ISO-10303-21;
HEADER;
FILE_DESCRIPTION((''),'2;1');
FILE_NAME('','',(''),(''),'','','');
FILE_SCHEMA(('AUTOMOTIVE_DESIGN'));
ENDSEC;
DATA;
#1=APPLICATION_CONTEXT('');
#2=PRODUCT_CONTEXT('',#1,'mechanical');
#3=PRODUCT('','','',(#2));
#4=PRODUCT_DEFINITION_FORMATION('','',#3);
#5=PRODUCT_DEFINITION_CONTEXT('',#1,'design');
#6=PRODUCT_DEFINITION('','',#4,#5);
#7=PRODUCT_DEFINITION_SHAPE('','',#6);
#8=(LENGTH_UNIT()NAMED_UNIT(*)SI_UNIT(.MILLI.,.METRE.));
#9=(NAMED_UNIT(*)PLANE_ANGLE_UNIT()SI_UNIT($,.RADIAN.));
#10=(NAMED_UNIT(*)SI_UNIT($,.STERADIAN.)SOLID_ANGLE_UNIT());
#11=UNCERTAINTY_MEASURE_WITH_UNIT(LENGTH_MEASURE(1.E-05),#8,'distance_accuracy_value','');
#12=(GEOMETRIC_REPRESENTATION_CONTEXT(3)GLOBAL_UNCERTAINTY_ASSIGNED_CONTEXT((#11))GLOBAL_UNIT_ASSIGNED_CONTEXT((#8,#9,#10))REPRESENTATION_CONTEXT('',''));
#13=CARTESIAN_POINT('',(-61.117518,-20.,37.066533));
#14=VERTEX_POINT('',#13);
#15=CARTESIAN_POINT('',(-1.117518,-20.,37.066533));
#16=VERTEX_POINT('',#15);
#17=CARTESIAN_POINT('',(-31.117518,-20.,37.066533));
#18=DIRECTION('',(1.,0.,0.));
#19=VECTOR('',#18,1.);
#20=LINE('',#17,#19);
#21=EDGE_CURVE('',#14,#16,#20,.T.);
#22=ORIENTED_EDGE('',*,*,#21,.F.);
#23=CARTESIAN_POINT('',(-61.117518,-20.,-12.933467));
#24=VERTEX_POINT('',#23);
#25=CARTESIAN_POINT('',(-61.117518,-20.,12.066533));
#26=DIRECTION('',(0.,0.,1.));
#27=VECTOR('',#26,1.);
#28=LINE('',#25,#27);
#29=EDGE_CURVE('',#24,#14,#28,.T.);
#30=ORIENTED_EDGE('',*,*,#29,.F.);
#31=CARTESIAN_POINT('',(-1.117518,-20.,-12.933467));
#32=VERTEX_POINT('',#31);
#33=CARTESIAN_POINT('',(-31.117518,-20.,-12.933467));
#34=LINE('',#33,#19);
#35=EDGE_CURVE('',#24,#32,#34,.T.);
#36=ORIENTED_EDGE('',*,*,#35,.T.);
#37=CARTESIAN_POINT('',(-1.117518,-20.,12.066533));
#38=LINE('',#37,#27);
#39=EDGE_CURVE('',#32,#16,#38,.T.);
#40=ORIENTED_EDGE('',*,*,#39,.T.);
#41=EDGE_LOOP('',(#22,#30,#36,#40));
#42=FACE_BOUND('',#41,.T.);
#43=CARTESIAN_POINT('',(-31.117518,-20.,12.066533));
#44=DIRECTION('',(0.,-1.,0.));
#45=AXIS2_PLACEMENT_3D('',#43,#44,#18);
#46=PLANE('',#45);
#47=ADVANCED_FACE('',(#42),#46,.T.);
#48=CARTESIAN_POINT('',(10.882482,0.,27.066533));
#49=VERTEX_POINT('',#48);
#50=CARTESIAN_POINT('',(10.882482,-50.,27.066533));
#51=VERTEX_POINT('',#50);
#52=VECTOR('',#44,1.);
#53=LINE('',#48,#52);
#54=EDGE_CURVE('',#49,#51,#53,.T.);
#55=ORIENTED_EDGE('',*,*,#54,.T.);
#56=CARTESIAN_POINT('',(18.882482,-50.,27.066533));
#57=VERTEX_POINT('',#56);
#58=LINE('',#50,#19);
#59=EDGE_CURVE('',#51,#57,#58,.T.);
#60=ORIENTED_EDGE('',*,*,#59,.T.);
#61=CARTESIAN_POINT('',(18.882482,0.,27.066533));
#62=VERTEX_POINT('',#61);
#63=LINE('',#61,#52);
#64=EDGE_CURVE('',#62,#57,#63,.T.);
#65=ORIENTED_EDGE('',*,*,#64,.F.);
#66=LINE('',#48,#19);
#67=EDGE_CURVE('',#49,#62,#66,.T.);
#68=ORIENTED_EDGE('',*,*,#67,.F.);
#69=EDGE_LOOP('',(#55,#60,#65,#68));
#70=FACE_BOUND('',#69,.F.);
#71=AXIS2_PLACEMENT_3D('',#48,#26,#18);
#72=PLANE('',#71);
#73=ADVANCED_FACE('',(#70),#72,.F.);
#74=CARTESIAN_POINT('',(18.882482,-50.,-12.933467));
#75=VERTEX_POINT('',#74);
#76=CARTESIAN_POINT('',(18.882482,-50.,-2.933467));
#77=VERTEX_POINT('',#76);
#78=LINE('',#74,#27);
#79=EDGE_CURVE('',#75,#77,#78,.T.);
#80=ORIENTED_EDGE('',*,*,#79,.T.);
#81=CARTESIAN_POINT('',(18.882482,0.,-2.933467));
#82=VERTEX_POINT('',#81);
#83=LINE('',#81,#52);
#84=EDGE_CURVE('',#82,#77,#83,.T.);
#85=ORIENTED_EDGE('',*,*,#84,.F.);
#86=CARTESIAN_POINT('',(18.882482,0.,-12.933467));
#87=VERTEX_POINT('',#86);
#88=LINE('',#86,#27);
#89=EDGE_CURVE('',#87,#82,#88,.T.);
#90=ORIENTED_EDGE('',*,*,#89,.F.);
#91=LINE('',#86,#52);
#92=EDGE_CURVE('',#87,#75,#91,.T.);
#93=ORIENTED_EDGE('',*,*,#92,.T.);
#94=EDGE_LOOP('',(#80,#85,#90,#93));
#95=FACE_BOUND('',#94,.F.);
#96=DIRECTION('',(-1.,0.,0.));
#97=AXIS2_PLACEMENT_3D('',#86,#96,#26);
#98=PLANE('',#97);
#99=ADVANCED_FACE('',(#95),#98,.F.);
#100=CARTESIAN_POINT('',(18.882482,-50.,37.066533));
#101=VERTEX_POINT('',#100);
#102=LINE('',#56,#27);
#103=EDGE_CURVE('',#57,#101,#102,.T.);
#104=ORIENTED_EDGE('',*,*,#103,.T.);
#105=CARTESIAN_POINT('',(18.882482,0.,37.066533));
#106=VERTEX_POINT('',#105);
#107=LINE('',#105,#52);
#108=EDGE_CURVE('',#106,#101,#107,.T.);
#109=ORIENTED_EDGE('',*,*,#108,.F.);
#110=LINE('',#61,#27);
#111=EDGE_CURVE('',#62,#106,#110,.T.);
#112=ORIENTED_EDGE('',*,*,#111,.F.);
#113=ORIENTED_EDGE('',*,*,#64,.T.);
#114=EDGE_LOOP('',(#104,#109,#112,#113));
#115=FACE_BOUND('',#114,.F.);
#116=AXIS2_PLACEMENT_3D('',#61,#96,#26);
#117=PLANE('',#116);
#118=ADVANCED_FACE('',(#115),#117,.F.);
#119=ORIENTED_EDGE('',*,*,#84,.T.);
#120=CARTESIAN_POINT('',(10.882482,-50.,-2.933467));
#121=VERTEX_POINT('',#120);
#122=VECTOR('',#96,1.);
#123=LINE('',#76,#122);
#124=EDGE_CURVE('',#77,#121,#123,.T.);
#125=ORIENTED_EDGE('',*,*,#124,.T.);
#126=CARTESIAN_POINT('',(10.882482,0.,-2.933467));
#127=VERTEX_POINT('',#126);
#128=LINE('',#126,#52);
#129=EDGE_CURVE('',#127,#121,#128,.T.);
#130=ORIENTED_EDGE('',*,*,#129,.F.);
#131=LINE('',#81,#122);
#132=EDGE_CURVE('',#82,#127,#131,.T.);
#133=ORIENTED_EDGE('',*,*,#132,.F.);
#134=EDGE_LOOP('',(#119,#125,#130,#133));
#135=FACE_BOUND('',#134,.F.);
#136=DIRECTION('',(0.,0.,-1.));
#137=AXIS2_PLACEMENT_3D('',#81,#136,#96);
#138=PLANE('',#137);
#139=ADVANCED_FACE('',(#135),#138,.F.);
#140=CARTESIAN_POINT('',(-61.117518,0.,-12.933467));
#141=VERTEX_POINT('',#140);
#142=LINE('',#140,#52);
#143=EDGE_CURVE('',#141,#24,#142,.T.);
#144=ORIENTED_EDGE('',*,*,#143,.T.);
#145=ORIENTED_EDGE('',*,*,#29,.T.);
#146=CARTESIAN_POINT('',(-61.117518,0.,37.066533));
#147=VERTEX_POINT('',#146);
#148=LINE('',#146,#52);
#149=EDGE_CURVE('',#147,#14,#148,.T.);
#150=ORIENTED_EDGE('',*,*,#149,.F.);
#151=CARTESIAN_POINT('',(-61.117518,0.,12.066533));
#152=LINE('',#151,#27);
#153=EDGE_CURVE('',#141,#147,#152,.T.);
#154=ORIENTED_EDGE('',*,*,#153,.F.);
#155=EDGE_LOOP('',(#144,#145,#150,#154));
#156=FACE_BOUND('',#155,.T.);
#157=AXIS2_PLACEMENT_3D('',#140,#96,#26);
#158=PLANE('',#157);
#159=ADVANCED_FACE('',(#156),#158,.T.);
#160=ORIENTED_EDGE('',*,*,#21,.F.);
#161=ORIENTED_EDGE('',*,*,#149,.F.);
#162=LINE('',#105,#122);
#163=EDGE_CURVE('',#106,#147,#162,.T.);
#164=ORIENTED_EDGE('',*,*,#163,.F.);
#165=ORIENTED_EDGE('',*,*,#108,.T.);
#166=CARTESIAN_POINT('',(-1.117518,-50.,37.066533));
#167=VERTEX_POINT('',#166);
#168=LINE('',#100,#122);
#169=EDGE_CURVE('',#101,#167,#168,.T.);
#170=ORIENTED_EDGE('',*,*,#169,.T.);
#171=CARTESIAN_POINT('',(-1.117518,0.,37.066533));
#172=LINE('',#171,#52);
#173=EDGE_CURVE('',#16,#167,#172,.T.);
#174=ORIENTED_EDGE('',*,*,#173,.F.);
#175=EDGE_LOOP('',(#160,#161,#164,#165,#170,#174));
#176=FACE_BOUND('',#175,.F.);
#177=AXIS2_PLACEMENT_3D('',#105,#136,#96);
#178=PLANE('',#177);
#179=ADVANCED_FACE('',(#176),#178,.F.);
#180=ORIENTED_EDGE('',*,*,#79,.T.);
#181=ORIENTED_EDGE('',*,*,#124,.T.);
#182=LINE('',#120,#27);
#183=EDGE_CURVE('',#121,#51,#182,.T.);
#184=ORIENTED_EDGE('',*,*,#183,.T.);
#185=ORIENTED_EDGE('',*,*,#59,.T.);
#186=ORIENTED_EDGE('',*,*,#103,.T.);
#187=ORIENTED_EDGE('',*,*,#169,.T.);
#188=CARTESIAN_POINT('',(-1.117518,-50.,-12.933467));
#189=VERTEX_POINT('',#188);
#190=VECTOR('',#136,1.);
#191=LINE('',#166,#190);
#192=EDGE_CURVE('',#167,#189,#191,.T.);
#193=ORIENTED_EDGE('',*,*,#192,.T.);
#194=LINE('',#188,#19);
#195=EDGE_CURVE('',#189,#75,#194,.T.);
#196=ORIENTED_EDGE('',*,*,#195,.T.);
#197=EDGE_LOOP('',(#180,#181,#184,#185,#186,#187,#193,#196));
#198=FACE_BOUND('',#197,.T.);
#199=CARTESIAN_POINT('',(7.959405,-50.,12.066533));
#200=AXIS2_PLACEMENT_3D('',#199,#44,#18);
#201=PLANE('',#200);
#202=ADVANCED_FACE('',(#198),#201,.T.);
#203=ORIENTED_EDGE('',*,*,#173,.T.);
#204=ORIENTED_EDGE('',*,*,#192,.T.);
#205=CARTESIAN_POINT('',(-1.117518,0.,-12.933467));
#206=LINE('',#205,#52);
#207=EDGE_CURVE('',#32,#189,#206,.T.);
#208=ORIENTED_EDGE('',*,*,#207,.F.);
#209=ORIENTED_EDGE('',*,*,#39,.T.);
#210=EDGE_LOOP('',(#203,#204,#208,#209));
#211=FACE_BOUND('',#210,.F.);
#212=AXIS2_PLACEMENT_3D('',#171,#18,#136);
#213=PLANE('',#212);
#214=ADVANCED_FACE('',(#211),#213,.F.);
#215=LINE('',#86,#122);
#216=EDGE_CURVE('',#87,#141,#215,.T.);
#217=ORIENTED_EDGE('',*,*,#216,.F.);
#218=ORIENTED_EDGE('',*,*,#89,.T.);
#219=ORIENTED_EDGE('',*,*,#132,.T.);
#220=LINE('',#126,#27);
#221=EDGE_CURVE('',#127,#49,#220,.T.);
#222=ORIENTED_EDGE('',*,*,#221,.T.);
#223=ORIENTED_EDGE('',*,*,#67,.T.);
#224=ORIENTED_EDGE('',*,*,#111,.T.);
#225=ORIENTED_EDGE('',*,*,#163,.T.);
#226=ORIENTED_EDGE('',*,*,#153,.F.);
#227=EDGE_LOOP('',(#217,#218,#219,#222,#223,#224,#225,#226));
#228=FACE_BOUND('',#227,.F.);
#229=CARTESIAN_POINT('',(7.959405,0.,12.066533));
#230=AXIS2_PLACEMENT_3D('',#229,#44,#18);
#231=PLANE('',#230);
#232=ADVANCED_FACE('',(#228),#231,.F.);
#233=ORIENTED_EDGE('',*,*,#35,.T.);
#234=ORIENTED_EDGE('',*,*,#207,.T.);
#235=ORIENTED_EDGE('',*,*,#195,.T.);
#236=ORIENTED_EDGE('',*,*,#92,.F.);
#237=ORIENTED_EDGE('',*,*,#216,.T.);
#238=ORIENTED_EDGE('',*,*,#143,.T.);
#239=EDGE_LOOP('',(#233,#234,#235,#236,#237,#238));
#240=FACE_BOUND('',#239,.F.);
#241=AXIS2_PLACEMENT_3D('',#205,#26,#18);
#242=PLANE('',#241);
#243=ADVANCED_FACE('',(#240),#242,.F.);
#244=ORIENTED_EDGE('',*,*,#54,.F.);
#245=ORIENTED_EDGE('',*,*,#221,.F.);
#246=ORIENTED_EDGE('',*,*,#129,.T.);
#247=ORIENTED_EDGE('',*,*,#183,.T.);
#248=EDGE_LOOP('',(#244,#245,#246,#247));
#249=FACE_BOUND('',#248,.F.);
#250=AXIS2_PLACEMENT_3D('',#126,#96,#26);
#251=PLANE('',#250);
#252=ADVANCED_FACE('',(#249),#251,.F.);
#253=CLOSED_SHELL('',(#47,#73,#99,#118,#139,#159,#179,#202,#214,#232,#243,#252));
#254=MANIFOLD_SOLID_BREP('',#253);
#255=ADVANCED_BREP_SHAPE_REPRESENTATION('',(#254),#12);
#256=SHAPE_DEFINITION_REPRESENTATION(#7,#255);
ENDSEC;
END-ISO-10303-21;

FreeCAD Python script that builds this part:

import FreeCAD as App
import Part
import Sketcher

V = App.Vector
Q = App.Units.Quantity

doc = App.newDocument("Part")
body = doc.addObject("PartDesign::Body", "Body")

sketch1 = body.newObject("Sketcher::SketchObject", "Sketch")
sketch1.AttachmentSupport = (doc.getObject("XZ_Plane"), [""])
sketch1.MapMode = "FlatFace"
sketch1.addGeometry([
    Part.LineSegment(V(-61, 37, 0), V(-61, -13, 0)),
    Part.LineSegment(V(-61, -13, 0), V(-1, -13, 0)),
    Part.LineSegment(V(-1, -13, 0), V(-1, 37, 0)),
    Part.LineSegment(V(-1, 37, 0), V(-61, 37, 0)),
], False)
sketch1.addConstraint([
    Sketcher.Constraint("Coincident", 0, 2, 1, 1),
    Sketcher.Constraint("Coincident", 1, 2, 2, 1),
    Sketcher.Constraint("Coincident", 2, 2, 3, 1),
    Sketcher.Constraint("Coincident", 3, 2, 0, 1),
    Sketcher.Constraint("Vertical", 0),
    Sketcher.Constraint("Horizontal", 1),
    Sketcher.Constraint("Vertical", 2),
    Sketcher.Constraint("Horizontal", 3),
    Sketcher.Constraint("DistanceX", 1, 1, 1, 2, Q("60 mm")),
    Sketcher.Constraint("DistanceY", 0, 2, 0, 1, Q("50 mm")),
    Sketcher.Constraint("DistanceX", 0, 2, -1, 1, Q("61.117518 mm")),
    Sketcher.Constraint("DistanceY", 0, 2, -1, 1, Q("12.933467 mm")),
])
pad1 = body.newObject("PartDesign::Pad", "Pad")
pad1.Profile = sketch1
pad1.Length = 20

sketch2 = body.newObject("Sketcher::SketchObject", "Sketch001")
sketch2.AttachmentSupport = (doc.getObject("XZ_Plane"), [""])
sketch2.MapMode = "FlatFace"
sketch2.addGeometry([
    Part.LineSegment(V(19, 37, 0), V(-1, 37, 0)),
    Part.LineSegment(V(-1, 37, 0), V(-1, -13, 0)),
    Part.LineSegment(V(-1, -13, 0), V(19, -13, 0)),
    Part.LineSegment(V(19, -13, 0), V(19, -3, 0)),
    Part.LineSegment(V(19, -3, 0), V(11, -3, 0)),
    Part.LineSegment(V(11, -3, 0), V(11, 27, 0)),
    Part.LineSegment(V(11, 27, 0), V(19, 27, 0)),
    Part.LineSegment(V(19, 27, 0), V(19, 37, 0)),
], False)
sketch2.addConstraint([
    Sketcher.Constraint("Coincident", 0, 2, 1, 1),
    Sketcher.Constraint("Coincident", 1, 2, 2, 1),
    Sketcher.Constraint("Coincident", 2, 2, 3, 1),
    Sketcher.Constraint("Coincident", 3, 2, 4, 1),
    Sketcher.Constraint("Coincident", 4, 2, 5, 1),
    Sketcher.Constraint("Coincident", 5, 2, 6, 1),
    Sketcher.Constraint("Coincident", 6, 2, 7, 1),
    Sketcher.Constraint("Coincident", 7, 2, 0, 1),
    Sketcher.Constraint("Horizontal", 0),
    Sketcher.Constraint("Vertical", 1),
    Sketcher.Constraint("Horizontal", 2),
    Sketcher.Constraint("Vertical", 3),
    Sketcher.Constraint("Horizontal", 4),
    Sketcher.Constraint("Vertical", 5),
    Sketcher.Constraint("Horizontal", 6),
    Sketcher.Constraint("Vertical", 7),
    Sketcher.Constraint("Vertical", 3, 2, 6, 2),
    Sketcher.Constraint("Equal", 3, 7),
    Sketcher.Constraint("DistanceX", 0, 2, 0, 1, Q("20 mm")),
    Sketcher.Constraint("DistanceX", 4, 2, 4, 1, Q("8 mm")),
    Sketcher.Constraint("DistanceY", 1, 2, 1, 1, Q("50 mm")),
    Sketcher.Constraint("DistanceY", 3, 1, 3, 2, Q("10 mm")),
    Sketcher.Constraint("DistanceX", -1, 1, 2, 2, Q("18.882482 mm")),
    Sketcher.Constraint("DistanceY", -1, 1, 0, 2, Q("37.066533 mm")),
])
pad2 = body.newObject("PartDesign::Pad", "Pad001")
pad2.Profile = sketch2
pad2.Length = 50

doc.recompute()
